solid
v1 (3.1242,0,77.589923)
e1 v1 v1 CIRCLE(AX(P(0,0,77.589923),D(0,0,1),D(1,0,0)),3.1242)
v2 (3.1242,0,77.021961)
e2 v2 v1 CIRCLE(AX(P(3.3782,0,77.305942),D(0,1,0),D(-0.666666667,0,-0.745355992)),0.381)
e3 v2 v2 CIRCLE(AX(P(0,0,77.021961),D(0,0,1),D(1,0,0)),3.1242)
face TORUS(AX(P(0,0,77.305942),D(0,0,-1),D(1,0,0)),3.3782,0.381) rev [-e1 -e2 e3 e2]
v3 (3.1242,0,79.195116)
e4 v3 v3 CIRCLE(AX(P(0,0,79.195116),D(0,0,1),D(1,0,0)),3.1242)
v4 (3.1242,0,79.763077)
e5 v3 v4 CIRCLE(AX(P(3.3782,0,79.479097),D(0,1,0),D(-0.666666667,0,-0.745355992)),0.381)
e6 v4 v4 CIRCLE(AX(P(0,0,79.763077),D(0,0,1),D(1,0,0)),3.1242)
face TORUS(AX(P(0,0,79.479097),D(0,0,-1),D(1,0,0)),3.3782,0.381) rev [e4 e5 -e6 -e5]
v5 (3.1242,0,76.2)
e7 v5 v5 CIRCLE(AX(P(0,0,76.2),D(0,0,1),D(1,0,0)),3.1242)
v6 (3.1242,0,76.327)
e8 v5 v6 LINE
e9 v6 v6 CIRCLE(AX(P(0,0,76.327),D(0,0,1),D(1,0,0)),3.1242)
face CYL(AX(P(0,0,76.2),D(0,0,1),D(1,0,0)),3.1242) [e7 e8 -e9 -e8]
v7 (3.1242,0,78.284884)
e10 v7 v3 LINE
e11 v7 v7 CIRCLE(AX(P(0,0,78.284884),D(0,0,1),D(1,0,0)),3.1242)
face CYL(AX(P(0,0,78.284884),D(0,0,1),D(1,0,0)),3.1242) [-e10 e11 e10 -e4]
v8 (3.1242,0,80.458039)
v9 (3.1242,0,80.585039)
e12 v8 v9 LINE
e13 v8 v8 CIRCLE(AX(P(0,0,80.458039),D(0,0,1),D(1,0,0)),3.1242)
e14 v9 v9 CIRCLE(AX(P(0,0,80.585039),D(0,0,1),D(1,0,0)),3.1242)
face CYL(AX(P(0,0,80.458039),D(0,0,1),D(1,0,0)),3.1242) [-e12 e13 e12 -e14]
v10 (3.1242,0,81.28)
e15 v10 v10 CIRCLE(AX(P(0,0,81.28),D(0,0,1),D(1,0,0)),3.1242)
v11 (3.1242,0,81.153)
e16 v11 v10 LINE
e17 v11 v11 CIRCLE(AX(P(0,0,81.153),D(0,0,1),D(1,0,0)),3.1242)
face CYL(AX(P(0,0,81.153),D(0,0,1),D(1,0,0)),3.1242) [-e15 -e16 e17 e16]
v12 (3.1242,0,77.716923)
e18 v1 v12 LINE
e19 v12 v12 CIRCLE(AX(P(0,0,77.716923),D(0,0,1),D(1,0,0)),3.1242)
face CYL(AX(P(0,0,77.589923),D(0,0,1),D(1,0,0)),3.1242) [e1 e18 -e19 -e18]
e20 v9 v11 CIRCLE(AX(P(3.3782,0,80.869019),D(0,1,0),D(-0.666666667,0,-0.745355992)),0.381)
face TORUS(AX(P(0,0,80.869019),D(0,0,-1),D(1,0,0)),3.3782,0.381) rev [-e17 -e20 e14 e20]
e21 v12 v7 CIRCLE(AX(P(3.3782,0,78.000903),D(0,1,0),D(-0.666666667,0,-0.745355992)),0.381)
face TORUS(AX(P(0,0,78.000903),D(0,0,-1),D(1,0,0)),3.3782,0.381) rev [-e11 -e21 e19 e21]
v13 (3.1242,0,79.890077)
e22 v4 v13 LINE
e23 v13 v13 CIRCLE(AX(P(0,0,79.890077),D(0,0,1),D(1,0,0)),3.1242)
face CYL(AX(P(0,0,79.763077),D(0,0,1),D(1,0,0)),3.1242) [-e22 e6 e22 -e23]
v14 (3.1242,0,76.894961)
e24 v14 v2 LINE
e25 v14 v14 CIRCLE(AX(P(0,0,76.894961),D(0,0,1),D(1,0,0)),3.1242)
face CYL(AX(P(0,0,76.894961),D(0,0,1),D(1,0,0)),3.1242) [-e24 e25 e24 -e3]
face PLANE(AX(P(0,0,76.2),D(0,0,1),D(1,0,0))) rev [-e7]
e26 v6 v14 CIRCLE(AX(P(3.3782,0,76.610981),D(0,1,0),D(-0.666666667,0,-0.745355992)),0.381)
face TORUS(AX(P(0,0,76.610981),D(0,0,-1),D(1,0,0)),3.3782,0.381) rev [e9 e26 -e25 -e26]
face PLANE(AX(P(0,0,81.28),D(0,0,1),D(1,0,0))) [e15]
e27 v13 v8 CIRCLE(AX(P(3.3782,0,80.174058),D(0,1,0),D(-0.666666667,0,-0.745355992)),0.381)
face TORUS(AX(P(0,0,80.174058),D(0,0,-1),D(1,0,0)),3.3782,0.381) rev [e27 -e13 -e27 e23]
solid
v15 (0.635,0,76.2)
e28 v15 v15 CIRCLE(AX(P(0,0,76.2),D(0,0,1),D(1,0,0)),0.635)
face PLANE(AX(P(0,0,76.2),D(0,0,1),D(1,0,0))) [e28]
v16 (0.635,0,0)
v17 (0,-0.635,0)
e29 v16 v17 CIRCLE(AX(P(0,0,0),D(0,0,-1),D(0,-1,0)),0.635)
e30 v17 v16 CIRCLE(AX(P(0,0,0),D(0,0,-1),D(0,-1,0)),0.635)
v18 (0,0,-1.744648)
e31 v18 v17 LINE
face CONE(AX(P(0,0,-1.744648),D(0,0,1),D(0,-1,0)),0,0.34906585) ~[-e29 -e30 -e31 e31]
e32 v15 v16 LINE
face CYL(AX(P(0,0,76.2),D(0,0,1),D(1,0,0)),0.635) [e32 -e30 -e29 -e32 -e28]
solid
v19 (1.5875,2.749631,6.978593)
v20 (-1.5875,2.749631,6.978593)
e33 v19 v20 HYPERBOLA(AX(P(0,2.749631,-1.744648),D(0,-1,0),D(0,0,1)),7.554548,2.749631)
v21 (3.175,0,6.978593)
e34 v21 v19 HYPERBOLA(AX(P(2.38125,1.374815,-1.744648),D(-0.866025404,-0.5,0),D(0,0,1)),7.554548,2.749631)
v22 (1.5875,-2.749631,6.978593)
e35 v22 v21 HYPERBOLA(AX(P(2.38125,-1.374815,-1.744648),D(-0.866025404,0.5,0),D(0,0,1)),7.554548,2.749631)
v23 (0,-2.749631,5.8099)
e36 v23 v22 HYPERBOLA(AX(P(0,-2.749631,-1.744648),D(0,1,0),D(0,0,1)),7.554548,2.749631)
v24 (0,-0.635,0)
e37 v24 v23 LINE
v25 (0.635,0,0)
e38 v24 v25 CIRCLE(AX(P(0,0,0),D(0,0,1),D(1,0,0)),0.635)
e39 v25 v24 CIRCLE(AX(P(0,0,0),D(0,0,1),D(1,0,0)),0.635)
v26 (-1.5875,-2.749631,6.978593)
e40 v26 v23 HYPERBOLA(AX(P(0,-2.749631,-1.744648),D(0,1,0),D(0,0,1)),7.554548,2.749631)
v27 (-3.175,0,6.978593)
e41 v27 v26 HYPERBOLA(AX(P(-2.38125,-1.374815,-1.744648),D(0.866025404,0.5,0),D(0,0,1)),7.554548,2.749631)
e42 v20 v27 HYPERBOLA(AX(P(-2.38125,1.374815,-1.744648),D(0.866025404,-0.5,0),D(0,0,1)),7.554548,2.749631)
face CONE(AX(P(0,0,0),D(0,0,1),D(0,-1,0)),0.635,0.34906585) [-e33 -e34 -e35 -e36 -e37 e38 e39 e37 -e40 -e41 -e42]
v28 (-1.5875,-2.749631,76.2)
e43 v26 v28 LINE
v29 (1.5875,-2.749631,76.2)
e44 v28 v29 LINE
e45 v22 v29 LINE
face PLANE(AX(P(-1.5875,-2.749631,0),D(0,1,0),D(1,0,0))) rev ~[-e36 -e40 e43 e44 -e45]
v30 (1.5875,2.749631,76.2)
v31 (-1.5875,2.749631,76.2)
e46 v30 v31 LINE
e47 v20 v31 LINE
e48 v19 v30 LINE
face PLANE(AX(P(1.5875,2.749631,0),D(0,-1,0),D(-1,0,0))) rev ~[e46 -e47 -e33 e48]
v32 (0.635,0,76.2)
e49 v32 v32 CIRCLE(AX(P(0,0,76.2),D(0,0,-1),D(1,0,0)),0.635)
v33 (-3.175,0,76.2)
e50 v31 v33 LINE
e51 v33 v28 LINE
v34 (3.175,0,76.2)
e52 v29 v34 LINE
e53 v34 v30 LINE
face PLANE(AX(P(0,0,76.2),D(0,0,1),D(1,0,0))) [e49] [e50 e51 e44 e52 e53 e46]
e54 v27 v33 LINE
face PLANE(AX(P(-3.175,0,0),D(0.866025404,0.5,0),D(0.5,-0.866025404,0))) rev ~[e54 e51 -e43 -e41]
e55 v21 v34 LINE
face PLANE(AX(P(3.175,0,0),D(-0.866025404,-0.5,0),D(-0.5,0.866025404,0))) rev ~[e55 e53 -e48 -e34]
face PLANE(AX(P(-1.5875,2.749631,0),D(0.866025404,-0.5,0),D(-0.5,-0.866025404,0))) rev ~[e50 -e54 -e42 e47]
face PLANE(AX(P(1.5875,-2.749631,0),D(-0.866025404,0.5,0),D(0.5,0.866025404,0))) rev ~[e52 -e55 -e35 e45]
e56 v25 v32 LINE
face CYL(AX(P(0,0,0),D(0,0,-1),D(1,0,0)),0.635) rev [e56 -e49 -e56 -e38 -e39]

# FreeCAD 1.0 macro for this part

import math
import FreeCAD as App
import Part
import Sketcher

V = App.Vector
Q = App.Units.Quantity

doc = App.newDocument("Part")
body = doc.addObject("PartDesign::Body", "Body")

# Sketch on XY plane
sketch1 = body.newObject("Sketcher::SketchObject", "Sketch")
sketch1.AttachmentSupport = (doc.getObject("XY_Plane"), [""])
sketch1.MapMode = "FlatFace"
sketch1.addGeometry([
    Part.LineSegment(V(-1.5875, 2.749631, 0), V(-3.175, 0, 0)),  # 0
    Part.LineSegment(V(-3.175, 0, 0), V(-1.5875, -2.749631, 0)),  # 1
    Part.LineSegment(V(-1.5875, -2.749631, 0), V(1.5875, -2.749631, 0)),  # 2
    Part.LineSegment(V(1.5875, -2.749631, 0), V(3.175, 0, 0)),  # 3
    Part.LineSegment(V(3.175, 0, 0), V(1.5875, 2.749631, 0)),  # 4
    Part.LineSegment(V(1.5875, 2.749631, 0), V(-1.5875, 2.749631, 0)),  # 5
], False)
sketch1.addConstraint([
    Sketcher.Constraint("Coincident", 0, 2, 1, 1),
    Sketcher.Constraint("Coincident", 1, 2, 2, 1),
    Sketcher.Constraint("Coincident", 2, 2, 3, 1),
    Sketcher.Constraint("Coincident", 3, 2, 4, 1),
    Sketcher.Constraint("Coincident", 4, 2, 5, 1),
    Sketcher.Constraint("Coincident", 5, 2, 0, 1),
    Sketcher.Constraint("Horizontal", 2),
    Sketcher.Constraint("Horizontal", 5),
    Sketcher.Constraint("Symmetric", 0, 2, 3, 2, -1, 1),
    Sketcher.Constraint("Symmetric", 1, 2, 4, 2, -1, 1),
    Sketcher.Constraint("PointOnObject", 0, 2, -1),
    Sketcher.Constraint("Parallel", 0, 3),
    Sketcher.Constraint("Vertical", 2, 2, 4, 2),
    Sketcher.Constraint("Angle", 0, Q("-120 deg")),
    Sketcher.Constraint("DistanceX", 2, 1, 2, 2, Q("0.125 in")),
    Sketcher.Constraint("DistanceX", 0, 2, 3, 2, Q("0.25 in")),
])
pad1 = body.newObject("PartDesign::Pad", "Pad")
pad1.Profile = sketch1
pad1.Length = Q("3 in")

# Sketch on XY plane
sketch2 = body.newObject("Sketcher::SketchObject", "Sketch001")
sketch2.AttachmentSupport = (doc.getObject("XY_Plane"), [""])
sketch2.MapMode = "FlatFace"
sketch2.addGeometry(Part.Circle(V(0, 0, 0), V(0, 0, 1), 0.635), False)
sketch2.addConstraint([
    Sketcher.Constraint("Coincident", 0, 3, -1, 1),
    Sketcher.Constraint("Diameter", 0, Q("0.05 in")),
])
pocket1 = body.newObject("PartDesign::Pocket", "Pocket")
pocket1.Profile = sketch2
pocket1.Type = "ThroughAll"
pocket1.Reversed = True

# Sketch on YZ plane
sketch3 = body.newObject("Sketcher::SketchObject", "Sketch002")
sketch3.AttachmentSupport = (doc.getObject("YZ_Plane"), [""])
sketch3.MapMode = "FlatFace"
sketch3.addGeometry([
    Part.LineSegment(V(-0.635, 0, 0), V(-5.257422, 12.7, 0)),
    Part.LineSegment(V(-5.257422, 12.7, 0), V(-5.257422, 0, 0)),
    Part.LineSegment(V(-5.257422, 0, 0), V(-0.635, 0, 0)),
], False)
sketch3.addConstraint([
    Sketcher.Constraint("Coincident", 0, 2, 1, 1),
    Sketcher.Constraint("Coincident", 1, 2, 2, 1),
    Sketcher.Constraint("Coincident", 2, 2, 0, 1),
    Sketcher.Constraint("Vertical", 1),
    Sketcher.Constraint("Horizontal", 2),
    Sketcher.Constraint("PointOnObject", 1, 2, -1),
    Sketcher.Constraint("DistanceY", 1, 2, 1, 1, Q("0.5 in")),
    Sketcher.Constraint("Angle", 0, Q("110 deg")),
    Sketcher.Constraint("DistanceX", 2, 2, -1, 1, Q("0.025 in")),
])
groove = body.newObject("PartDesign::Groove", "Groove")
groove.Profile = sketch3
groove.ReferenceAxis = (sketch3, ["V_Axis"])
groove.Angle = 360
body2 = doc.addObject("PartDesign::Body", "Body001")

# Sketch on XY plane
sketch4 = body2.newObject("Sketcher::SketchObject", "Sketch003")
sketch4.AttachmentSupport = (doc.getObject("XY_Plane001"), [""])
sketch4.MapMode = "FlatFace"
sketch4.AttachmentOffset = App.Placement(V(0, 0, 3 * 25.4), App.Rotation())
sketch4.addGeometry(Part.Circle(V(0, 0, 0), V(0, 0, 1), 0.635), False)
sketch4.addConstraint([
    Sketcher.Constraint("Coincident", 0, 3, -1, 1),
    Sketcher.Constraint("Diameter", 0, Q("0.05 in")),
])
pad2 = body2.newObject("PartDesign::Pad", "Pad001")
pad2.Profile = sketch4
pad2.Length = Q("5.1 in")
pad2.Reversed = True

# Sketch on YZ plane
sketch5 = body2.newObject("Sketcher::SketchObject", "Sketch004")
sketch5.AttachmentSupport = (doc.getObject("YZ_Plane001"), [""])
sketch5.MapMode = "FlatFace"
sketch5.addGeometry([
    Part.LineSegment(V(0, -1.744648, 0), V(-0.635, 0, 0)),
    Part.LineSegment(V(-0.635, 0, 0), V(-0.635, -53.34, 0)),
    Part.LineSegment(V(-0.635, -53.34, 0), V(0, -53.34, 0)),
    Part.LineSegment(V(0, -53.34, 0), V(0, -1.744648, 0)),
], False)
sketch5.addConstraint([
    Sketcher.Constraint("Coincident", 0, 2, 1, 1),
    Sketcher.Constraint("Coincident", 1, 2, 2, 1),
    Sketcher.Constraint("Coincident", 2, 2, 3, 1),
    Sketcher.Constraint("Coincident", 3, 2, 0, 1),
    Sketcher.Constraint("Vertical", 1),
    Sketcher.Constraint("Horizontal", 2),
    Sketcher.Constraint("Vertical", 3),
    Sketcher.Constraint("PointOnObject", 0, 2, -1),
    Sketcher.Constraint("PointOnObject", 2, 2, -2),
    Sketcher.Constraint("DistanceY", 1, 2, 1, 1, Q("2.1 in")),
    Sketcher.Constraint("Angle", 0, Q("110 deg")),
    Sketcher.Constraint("DistanceX", 2, 1, 2, 2, Q("0.025 in")),
])
groove2 = body2.newObject("PartDesign::Groove", "Groove001")
groove2.Profile = sketch5
groove2.ReferenceAxis = (sketch5, ["V_Axis"])
groove2.Angle = 360
body3 = doc.addObject("PartDesign::Body", "Body002")

# Sketch on XZ plane
sketch6 = body3.newObject("Sketcher::SketchObject", "Sketch005")
sketch6.AttachmentSupport = (doc.getObject("XZ_Plane002"), [""])
sketch6.MapMode = "FlatFace"
sketch6.addGeometry([
    Part.LineSegment(V(0, 81.28, 0), V(0, 76.2, 0)),  # 0
    Part.LineSegment(V(0, 76.2, 0), V(3.1242, 76.2, 0)),  # 1
    Part.LineSegment(V(3.1242, 76.2, 0), V(3.1242, 76.327, 0)),  # 2
    Part.ArcOfCircle(Part.Circle(V(3.3782, 76.610981, 0), V(0, 0, 1), 0.381), math.radians(131.810315), math.radians(228.189685)),  # 3
    Part.LineSegment(V(3.1242, 76.894961, 0), V(3.1242, 77.021961, 0)),  # 4
    Part.ArcOfCircle(Part.Circle(V(3.3782, 77.305942, 0), V(0, 0, 1), 0.381), math.radians(131.810315), math.radians(228.189685)),  # 5
    Part.LineSegment(V(3.1242, 77.589923, 0), V(3.1242, 77.716923, 0)),  # 6
    Part.ArcOfCircle(Part.Circle(V(3.3782, 78.000903, 0), V(0, 0, 1), 0.381), math.radians(131.810315), math.radians(228.189685)),  # 7
    Part.LineSegment(V(3.1242, 78.284884, 0), V(3.1242, 79.195116, 0)),  # 8
    Part.ArcOfCircle(Part.Circle(V(3.3782, 79.479097, 0), V(0, 0, 1), 0.381), math.radians(131.810315), math.radians(228.189685)),  # 9
    Part.LineSegment(V(3.1242, 79.763077, 0), V(3.1242, 79.890077, 0)),  # 10
    Part.ArcOfCircle(Part.Circle(V(3.3782, 80.174058, 0), V(0, 0, 1), 0.381), math.radians(131.810315), math.radians(228.189685)),  # 11
    Part.LineSegment(V(3.1242, 80.458039, 0), V(3.1242, 80.585039, 0)),  # 12
    Part.ArcOfCircle(Part.Circle(V(3.3782, 80.869019, 0), V(0, 0, 1), 0.381), math.radians(131.810315), math.radians(228.189685)),  # 13
    Part.LineSegment(V(3.1242, 81.153, 0), V(3.1242, 81.28, 0)),  # 14
    Part.LineSegment(V(3.1242, 81.28, 0), V(0, 81.28, 0)),  # 15
], False)
sketch6.addConstraint([
    Sketcher.Constraint("Coincident", 0, 2, 1, 1),
    Sketcher.Constraint("Coincident", 1, 2, 2, 1),
    Sketcher.Constraint("Coincident", 2, 2, 3, 2),
    Sketcher.Constraint("Coincident", 3, 1, 4, 1),
    Sketcher.Constraint("Coincident", 4, 2, 5, 2),
    Sketcher.Constraint("Coincident", 5, 1, 6, 1),
    Sketcher.Constraint("Coincident", 6, 2, 7, 2),
    Sketcher.Constraint("Coincident", 7, 1, 8, 1),
    Sketcher.Constraint("Coincident", 8, 2, 9, 2),
    Sketcher.Constraint("Coincident", 9, 1, 10, 1),
    Sketcher.Constraint("Coincident", 10, 2, 11, 2),
    Sketcher.Constraint("Coincident", 11, 1, 12, 1),
    Sketcher.Constraint("Coincident", 12, 2, 13, 2),
    Sketcher.Constraint("Coincident", 13, 1, 14, 1),
    Sketcher.Constraint("Coincident", 14, 2, 15, 1),
    Sketcher.Constraint("Coincident", 15, 2, 0, 1),
    Sketcher.Constraint("Vertical", 0),
    Sketcher.Constraint("Horizontal", 1),
    Sketcher.Constraint("Vertical", 2),
    Sketcher.Constraint("Vertical", 4),
    Sketcher.Constraint("Vertical", 6),
    Sketcher.Constraint("Vertical", 8),
    Sketcher.Constraint("Vertical", 10),
    Sketcher.Constraint("Vertical", 12),
    Sketcher.Constraint("Vertical", 14),
    Sketcher.Constraint("Horizontal", 15),
    Sketcher.Constraint("Equal", 3, 5),
    Sketcher.Constraint("Equal", 5, 7),
    Sketcher.Constraint("Equal", 7, 9),
    Sketcher.Constraint("Equal", 9, 11),
    Sketcher.Constraint("Equal", 11, 13),
    Sketcher.Constraint("PointOnObject", 0, 2, -2),
    Sketcher.Constraint("Vertical", 3, 3, 5, 3),
    Sketcher.Constraint("Vertical", 5, 3, 7, 3),
    Sketcher.Constraint("Vertical", 7, 3, 9, 3),
    Sketcher.Constraint("Vertical", 9, 3, 11, 3),
    Sketcher.Constraint("Vertical", 11, 3, 13, 3),
    Sketcher.Constraint("Vertical", 2, 2, 3, 1),
    Sketcher.Constraint("Vertical", 4, 2, 5, 1),
    Sketcher.Constraint("Vertical", 6, 2, 7, 1),
    Sketcher.Constraint("Vertical", 8, 2, 9, 1),
    Sketcher.Constraint("Vertical", 10, 2, 11, 1),
    Sketcher.Constraint("Vertical", 12, 2, 13, 1),
    Sketcher.Constraint("Equal", 2, 4),
    Sketcher.Constraint("Equal", 4, 6),
    Sketcher.Constraint("Equal", 6, 10),
    Sketcher.Constraint("Equal", 10, 12),
    Sketcher.Constraint("Equal", 12, 14),
    Sketcher.Constraint("DistanceY", 0, 2, 0, 1, Q("0.2 in")),
    Sketcher.Constraint("DistanceY", -1, 1, 0, 2, Q("3 in")),
    Sketcher.Constraint("Radius", 3, Q("0.015 in")),
    Sketcher.Constraint("DistanceX", 1, 1, 1, 2, Q("0.123 in")),
    Sketcher.Constraint("DistanceY", 2, 1, 2, 2, Q("0.005 in")),
    Sketcher.Constraint("DistanceX", 1, 2, 3, 3, Q("0.01 in")),
])
revolution = body3.newObject("PartDesign::Revolution", "Revolution")
revolution.Profile = sketch6
revolution.ReferenceAxis = (sketch6, ["V_Axis"])
revolution.Angle = 360

doc.recompute()
